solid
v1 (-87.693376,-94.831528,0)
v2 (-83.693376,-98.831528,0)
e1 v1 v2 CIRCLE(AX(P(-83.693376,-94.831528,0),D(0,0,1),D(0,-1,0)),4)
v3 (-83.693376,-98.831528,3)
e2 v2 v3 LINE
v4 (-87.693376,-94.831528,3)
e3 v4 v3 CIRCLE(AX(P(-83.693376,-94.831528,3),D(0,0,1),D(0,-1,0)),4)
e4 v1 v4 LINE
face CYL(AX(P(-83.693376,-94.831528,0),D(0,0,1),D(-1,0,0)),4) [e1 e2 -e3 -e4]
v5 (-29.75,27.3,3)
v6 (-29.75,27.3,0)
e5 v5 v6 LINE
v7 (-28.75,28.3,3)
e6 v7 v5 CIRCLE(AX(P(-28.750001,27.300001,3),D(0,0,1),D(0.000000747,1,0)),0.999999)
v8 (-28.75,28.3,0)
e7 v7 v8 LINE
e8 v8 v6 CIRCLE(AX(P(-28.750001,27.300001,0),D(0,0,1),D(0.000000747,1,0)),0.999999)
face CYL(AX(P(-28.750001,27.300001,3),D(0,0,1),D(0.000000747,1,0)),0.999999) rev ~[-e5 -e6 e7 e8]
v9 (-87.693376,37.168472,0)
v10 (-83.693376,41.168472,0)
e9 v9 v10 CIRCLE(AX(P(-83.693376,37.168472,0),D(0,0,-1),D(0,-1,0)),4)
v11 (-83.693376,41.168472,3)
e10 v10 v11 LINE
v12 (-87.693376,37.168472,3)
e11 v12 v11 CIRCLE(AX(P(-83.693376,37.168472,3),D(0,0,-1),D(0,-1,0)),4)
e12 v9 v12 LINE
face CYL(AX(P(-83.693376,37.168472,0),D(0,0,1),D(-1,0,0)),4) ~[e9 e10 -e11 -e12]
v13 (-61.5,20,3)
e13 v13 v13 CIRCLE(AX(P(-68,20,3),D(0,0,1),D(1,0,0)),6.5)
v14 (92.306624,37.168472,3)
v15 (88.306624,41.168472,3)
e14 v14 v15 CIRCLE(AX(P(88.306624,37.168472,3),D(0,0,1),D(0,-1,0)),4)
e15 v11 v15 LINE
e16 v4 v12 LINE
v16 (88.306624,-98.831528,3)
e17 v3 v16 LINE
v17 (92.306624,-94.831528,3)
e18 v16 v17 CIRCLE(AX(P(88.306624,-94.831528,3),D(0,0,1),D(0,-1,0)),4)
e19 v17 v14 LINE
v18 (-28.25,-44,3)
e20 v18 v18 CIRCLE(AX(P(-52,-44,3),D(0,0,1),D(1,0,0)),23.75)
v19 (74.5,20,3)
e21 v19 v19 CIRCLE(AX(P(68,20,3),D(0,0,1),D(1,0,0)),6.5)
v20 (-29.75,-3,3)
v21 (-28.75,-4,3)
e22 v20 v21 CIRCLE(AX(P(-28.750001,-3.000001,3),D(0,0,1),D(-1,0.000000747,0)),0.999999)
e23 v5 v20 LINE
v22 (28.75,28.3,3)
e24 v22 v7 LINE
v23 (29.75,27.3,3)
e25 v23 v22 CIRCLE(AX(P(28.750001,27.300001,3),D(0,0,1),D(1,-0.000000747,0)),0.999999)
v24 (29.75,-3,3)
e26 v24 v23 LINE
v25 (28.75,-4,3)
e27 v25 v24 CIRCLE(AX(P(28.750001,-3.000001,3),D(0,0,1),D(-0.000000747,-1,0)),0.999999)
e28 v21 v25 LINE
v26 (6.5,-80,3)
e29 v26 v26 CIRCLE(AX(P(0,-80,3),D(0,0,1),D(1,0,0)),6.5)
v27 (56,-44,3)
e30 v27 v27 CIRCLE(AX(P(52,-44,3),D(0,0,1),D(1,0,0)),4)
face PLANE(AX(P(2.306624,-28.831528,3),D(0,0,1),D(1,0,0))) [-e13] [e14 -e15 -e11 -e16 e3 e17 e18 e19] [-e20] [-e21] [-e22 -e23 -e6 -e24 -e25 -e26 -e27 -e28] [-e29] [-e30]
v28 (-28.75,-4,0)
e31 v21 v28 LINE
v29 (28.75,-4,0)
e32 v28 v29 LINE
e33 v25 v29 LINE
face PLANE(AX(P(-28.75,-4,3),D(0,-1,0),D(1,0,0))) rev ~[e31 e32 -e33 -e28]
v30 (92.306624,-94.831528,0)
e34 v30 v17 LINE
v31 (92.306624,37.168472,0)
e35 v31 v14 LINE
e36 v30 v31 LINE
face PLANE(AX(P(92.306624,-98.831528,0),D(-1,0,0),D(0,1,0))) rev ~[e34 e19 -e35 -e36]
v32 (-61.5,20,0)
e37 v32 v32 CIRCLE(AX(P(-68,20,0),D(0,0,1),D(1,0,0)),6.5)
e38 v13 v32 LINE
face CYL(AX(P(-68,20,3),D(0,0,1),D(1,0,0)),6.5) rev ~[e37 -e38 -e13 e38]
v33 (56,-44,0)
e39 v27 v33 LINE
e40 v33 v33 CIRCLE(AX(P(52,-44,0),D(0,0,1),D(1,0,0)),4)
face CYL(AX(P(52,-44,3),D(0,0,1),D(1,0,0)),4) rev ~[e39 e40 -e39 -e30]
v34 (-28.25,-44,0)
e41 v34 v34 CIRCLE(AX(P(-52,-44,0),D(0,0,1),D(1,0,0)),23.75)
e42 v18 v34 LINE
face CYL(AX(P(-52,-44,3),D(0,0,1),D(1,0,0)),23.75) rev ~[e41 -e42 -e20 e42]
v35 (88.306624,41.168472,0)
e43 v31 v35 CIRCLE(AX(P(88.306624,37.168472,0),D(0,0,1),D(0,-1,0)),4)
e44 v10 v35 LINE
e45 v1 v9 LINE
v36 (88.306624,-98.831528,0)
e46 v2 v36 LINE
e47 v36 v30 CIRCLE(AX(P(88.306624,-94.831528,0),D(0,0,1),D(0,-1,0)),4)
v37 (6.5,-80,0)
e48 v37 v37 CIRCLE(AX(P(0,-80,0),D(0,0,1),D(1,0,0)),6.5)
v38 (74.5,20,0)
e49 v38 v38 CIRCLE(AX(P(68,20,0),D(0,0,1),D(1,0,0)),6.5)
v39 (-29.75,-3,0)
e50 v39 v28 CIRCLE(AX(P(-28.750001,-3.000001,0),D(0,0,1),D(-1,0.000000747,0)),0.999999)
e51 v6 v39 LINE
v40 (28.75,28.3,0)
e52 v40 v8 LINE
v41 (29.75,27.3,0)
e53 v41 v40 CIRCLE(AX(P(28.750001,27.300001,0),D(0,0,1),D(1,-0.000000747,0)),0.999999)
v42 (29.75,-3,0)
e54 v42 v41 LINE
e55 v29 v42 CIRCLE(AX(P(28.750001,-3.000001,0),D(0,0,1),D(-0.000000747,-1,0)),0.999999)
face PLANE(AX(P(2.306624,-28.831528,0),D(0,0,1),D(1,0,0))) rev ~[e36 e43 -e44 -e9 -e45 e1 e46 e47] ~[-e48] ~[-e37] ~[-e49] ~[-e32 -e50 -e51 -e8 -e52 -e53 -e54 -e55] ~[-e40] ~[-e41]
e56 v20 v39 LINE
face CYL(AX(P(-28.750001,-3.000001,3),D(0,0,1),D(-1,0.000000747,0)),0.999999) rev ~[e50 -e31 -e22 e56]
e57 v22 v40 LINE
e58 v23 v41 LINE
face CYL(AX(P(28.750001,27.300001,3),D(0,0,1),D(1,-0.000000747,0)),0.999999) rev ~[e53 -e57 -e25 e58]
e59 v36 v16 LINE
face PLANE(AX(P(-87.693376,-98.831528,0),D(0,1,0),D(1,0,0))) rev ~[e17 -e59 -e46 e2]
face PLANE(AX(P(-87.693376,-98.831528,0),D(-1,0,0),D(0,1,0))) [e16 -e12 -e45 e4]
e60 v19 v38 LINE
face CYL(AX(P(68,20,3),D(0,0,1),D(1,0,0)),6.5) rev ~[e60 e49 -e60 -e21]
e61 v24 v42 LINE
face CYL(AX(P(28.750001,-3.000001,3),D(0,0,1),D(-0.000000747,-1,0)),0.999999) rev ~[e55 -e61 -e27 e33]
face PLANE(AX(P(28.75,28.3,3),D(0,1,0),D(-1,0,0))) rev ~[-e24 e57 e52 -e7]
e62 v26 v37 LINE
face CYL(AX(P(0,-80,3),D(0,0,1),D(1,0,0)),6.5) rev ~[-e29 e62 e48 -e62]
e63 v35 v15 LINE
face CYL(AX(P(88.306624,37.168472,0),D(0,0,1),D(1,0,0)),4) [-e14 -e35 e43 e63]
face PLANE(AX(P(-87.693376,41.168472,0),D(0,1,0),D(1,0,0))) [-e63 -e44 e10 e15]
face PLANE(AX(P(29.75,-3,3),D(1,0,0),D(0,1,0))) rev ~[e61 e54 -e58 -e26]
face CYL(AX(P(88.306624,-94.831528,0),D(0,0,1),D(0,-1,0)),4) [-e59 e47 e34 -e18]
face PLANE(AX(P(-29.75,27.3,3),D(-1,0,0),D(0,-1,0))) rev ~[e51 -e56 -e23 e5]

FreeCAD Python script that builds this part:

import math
import FreeCAD as App
import Part
import Sketcher
from FreeCAD import Vector


def edges_at(feature, points):
    """Names of the edges that pass closest to the given points."""
    edges = feature.Shape.Edges
    near = lambda p: min(range(len(edges)), key=lambda i: edges[i].distToShape(Part.Vertex(*p))[0])
    return sorted({f"Edge{near(p) + 1}" for p in points})


def add_polygon(sketch, points):
    """Adds a closed chain of lines whose ends are joined by coincident constraints."""
    first, n = sketch.GeometryCount, len(points)
    for a, b in zip(points, points[1:] + points[:1]):
        sketch.addGeometry(Part.LineSegment(App.Vector(*a, 0), App.Vector(*b, 0)), False)
    for i in range(n):
        sketch.addConstraint(Sketcher.Constraint("Coincident", first + i, 2, first + (i + 1) % n, 1))

doc = App.newDocument("Part")
body = doc.addObject("PartDesign::Body", "Body")

# Sketch on XY plane
sketch1 = body.newObject("Sketcher::SketchObject", "Sketch")
sketch1.AttachmentSupport = (doc.getObject("XY_Plane"), [""])
sketch1.MapMode = "FlatFace"
add_polygon(sketch1, [(-88, 41), (-88, -99), (92, -99), (92, 41)])  # lines 0-3
sketch1.addConstraint([
    Sketcher.Constraint("Vertical", 0),
    Sketcher.Constraint("Horizontal", 1),
    Sketcher.Constraint("Vertical", 2),
    Sketcher.Constraint("Horizontal", 3),
    Sketcher.Constraint("DistanceX", 1, 1, 1, 2, 180.0),
    Sketcher.Constraint("DistanceY", 0, 2, 0, 1, 140.0),
    Sketcher.Constraint("DistanceY", 0, 2, -1, 1, 98.831528),
    Sketcher.Constraint("DistanceX", 0, 2, -1, 1, 87.693376),
])
pad1 = body.newObject("PartDesign::Pad", "Pad")
pad1.Profile = sketch1
pad1.Length = 3
doc.recompute()

fillet = body.newObject("PartDesign::Fillet", "Fillet")
fillet.Base = (pad1, edges_at(pad1, [
    (-87.693, 41.168, 1.5),
    (92.307, 41.168, 1.5),
    (92.307, -98.832, 1.5),
    (-87.693, -98.832, 1.5),
]))
fillet.Radius = 4

# Sketch on XY plane
sketch2 = body.newObject("Sketcher::SketchObject", "Sketch001")
sketch2.AttachmentSupport = (doc.getObject("XY_Plane"), [""])
sketch2.MapMode = "FlatFace"
sketch2.AttachmentOffset = App.Placement(Vector(0, 0, 3), App.Rotation())
sketch2.addGeometry([
    Part.Circle(Vector(-68, 20, 0), Vector(0, 0, 1), 6.5),  # 0
    Part.Circle(Vector(-52, -44, 0), Vector(0, 0, 1), 23.8),  # 1
    Part.Circle(Vector(52, -44, 0), Vector(0, 0, 1), 4),  # 2
    Part.Circle(Vector(0, -80, 0), Vector(0, 0, 1), 6.5),  # 3
    Part.Circle(Vector(68, 20, 0), Vector(0, 0, 1), 6.5),  # 4
    Part.LineSegment(Vector(-28.8, -4, 0), Vector(28.8, -4, 0)),  # 5
    Part.ArcOfCircle(Part.Circle(Vector(28.8, -3, 0), Vector(0, 0, 1), 1), math.radians(-90), math.radians(0)),  # 6
    Part.LineSegment(Vector(29.8, -3, 0), Vector(29.8, 27.3, 0)),  # 7
    Part.ArcOfCircle(Part.Circle(Vector(28.8, 27.3, 0), Vector(0, 0, 1), 1), math.radians(0), math.radians(90)),  # 8
    Part.LineSegment(Vector(28.8, 28.3, 0), Vector(-28.8, 28.3, 0)),  # 9
    Part.ArcOfCircle(Part.Circle(Vector(-28.8, 27.3, 0), Vector(0, 0, 1), 1), math.radians(90), math.radians(180)),  # 10
    Part.LineSegment(Vector(-29.8, 27.3, 0), Vector(-29.8, -3, 0)),  # 11
    Part.ArcOfCircle(Part.Circle(Vector(-28.8, -3, 0), Vector(0, 0, 1), 1), math.radians(180), math.radians(270)),  # 12
], False)
sketch2.addConstraint([
    Sketcher.Constraint("Tangent", 5, 2, 6, 1),
    Sketcher.Constraint("Tangent", 6, 2, 7, 1),
    Sketcher.Constraint("Tangent", 7, 2, 8, 1),
    Sketcher.Constraint("Tangent", 8, 2, 9, 1),
    Sketcher.Constraint("Tangent", 9, 2, 10, 1),
    Sketcher.Constraint("Tangent", 10, 2, 11, 1),
    Sketcher.Constraint("Tangent", 11, 2, 12, 1),
    Sketcher.Constraint("Tangent", 12, 2, 5, 1),
    Sketcher.Constraint("Horizontal", 5),
    Sketcher.Constraint("Vertical", 7),
    Sketcher.Constraint("Horizontal", 9),
    Sketcher.Constraint("Vertical", 11),
    Sketcher.Constraint("Equal", 0, 3),
    Sketcher.Constraint("Equal", 3, 4),
    Sketcher.Constraint("Equal", 6, 8),
    Sketcher.Constraint("Equal", 8, 10),
    Sketcher.Constraint("Equal", 10, 12),
    Sketcher.Constraint("Symmetric", 1, 3, 2, 3, -2),
    Sketcher.Constraint("Symmetric", 0, 3, 4, 3, -2),
    Sketcher.Constraint("PointOnObject", 3, 3, -2),
    Sketcher.Constraint("Diameter", 0, 13.0),
    Sketcher.Constraint("Diameter", 2, 8.0),
    Sketcher.Constraint("Radius", 6, 0.999999),
    Sketcher.Constraint("Diameter", 1, 47.5),
    Sketcher.Constraint("DistanceX", 5, 1, 5, 2, 57.5),
    Sketcher.Constraint("DistanceY", 7, 1, 7, 2, 30.3),
    Sketcher.Constraint("DistanceX", 0, 3, -1, 1, 68.0),
    Sketcher.Constraint("DistanceY", -1, 1, 0, 3, 20.0),
    Sketcher.Constraint("DistanceX", 1, 3, -1, 1, 52.0),
    Sketcher.Constraint("DistanceY", 1, 3, -1, 1, 44.0),
    Sketcher.Constraint("DistanceY", 3, 3, -1, 1, 80.0),
    Sketcher.Constraint("DistanceY", 6, 3, -1, 1, 3.000001),
    Sketcher.Constraint("DistanceX", -1, 1, 6, 3, 28.750001),
])
pocket1 = body.newObject("PartDesign::Pocket", "Pocket")
pocket1.Profile = sketch2
pocket1.Type = "ThroughAll"

doc.recompute()
